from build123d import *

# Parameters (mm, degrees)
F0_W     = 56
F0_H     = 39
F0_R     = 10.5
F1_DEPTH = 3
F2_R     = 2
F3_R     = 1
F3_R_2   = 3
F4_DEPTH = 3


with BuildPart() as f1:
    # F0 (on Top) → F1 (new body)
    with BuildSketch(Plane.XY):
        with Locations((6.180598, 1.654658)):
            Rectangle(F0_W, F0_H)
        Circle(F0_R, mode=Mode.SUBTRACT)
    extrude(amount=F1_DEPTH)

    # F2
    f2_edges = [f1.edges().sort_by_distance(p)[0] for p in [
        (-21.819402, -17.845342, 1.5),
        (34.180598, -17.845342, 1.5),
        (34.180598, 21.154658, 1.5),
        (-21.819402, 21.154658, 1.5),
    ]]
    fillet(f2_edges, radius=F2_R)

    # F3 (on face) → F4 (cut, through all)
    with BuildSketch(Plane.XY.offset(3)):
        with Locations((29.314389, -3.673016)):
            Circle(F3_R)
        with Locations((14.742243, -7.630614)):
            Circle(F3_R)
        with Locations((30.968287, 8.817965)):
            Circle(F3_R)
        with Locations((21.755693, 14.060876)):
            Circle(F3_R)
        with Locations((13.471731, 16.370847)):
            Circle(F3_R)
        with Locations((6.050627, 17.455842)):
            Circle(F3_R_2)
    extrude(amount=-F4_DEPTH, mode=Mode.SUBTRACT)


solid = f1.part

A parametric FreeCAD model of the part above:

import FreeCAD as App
import Part
import Sketcher

V = App.Vector


def edges_at(feature, points):
    """Names of the edges that pass closest to the given points."""
    edges = feature.Shape.Edges
    near = lambda p: min(range(len(edges)), key=lambda i: edges[i].distToShape(Part.Vertex(*p))[0])
    return sorted({f"Edge{near(p) + 1}" for p in points})

doc = App.newDocument("Part")
body = doc.addObject("PartDesign::Body", "Body")

sketch1 = body.newObject("Sketcher::SketchObject", "Sketch")
sketch1.AttachmentSupport = (doc.getObject("XY_Plane"), [""])
sketch1.MapMode = "FlatFace"
sketch1.addGeometry([
    Part.LineSegment(V(-21.819402, 21.154658, 0), V(-21.819402, -17.845342, 0)),
    Part.LineSegment(V(-21.819402, -17.845342, 0), V(34.180598, -17.845342, 0)),
    Part.LineSegment(V(34.180598, -17.845342, 0), V(34.180598, 21.154658, 0)),
    Part.LineSegment(V(34.180598, 21.154658, 0), V(-21.819402, 21.154658, 0)),
    Part.Circle(V(0, 0, 0), V(0, 0, 1), 10.5),
], False)
sketch1.addConstraint([
    Sketcher.Constraint("Coincident", 0, 2, 1, 1),
    Sketcher.Constraint("Coincident", 1, 2, 2, 1),
    Sketcher.Constraint("Coincident", 2, 2, 3, 1),
    Sketcher.Constraint("Coincident", 3, 2, 0, 1),
    Sketcher.Constraint("Vertical", 0),
    Sketcher.Constraint("Horizontal", 1),
    Sketcher.Constraint("Vertical", 2),
    Sketcher.Constraint("Horizontal", 3),
    Sketcher.Constraint("Coincident", 4, 3, -1, 1),
    Sketcher.Constraint("Diameter", 4, 21.0),
    Sketcher.Constraint("DistanceX", 1, 1, 1, 2, 56.0),
    Sketcher.Constraint("DistanceY", 0, 2, 0, 1, 39.0),
    Sketcher.Constraint("DistanceX", 0, 2, -1, 1, 21.819402),
    Sketcher.Constraint("DistanceY", 0, 2, -1, 1, 17.845342),
])
pad1 = body.newObject("PartDesign::Pad", "Pad")
pad1.Profile = sketch1
pad1.Length = 3
doc.recompute()

fillet = body.newObject("PartDesign::Fillet", "Fillet")
fillet.Base = (pad1, edges_at(pad1, [
    (-21.819, -17.845, 1.5),
    (34.181, -17.845, 1.5),
    (34.181, 21.155, 1.5),
    (-21.819, 21.155, 1.5),
]))
fillet.Radius = 2

sketch2 = body.newObject("Sketcher::SketchObject", "Sketch001")
sketch2.AttachmentSupport = (doc.getObject("XY_Plane"), [""])
sketch2.MapMode = "FlatFace"
sketch2.AttachmentOffset = App.Placement(V(0, 0, 3), App.Rotation())
sketch2.addGeometry([
    Part.Circle(V(29.314389, -3.673016, 0), V(0, 0, 1), 1),
    Part.Circle(V(14.742243, -7.630614, 0), V(0, 0, 1), 1),
    Part.Circle(V(30.968287, 8.817965, 0), V(0, 0, 1), 1),
    Part.Circle(V(21.755693, 14.060876, 0), V(0, 0, 1), 1),
    Part.Circle(V(13.471731, 16.370847, 0), V(0, 0, 1), 1),
    Part.Circle(V(6.050627, 17.455842, 0), V(0, 0, 1), 3),
], False)
sketch2.addConstraint([
    Sketcher.Constraint("Equal", 0, 1),
    Sketcher.Constraint("Equal", 1, 2),
    Sketcher.Constraint("Equal", 2, 3),
    Sketcher.Constraint("Equal", 3, 4),
    Sketcher.Constraint("Diameter", 0, 2.0),
    Sketcher.Constraint("Diameter", 5, 6.0),
    Sketcher.Constraint("DistanceX", 0, 3, 2, 3, 1.653898),
    Sketcher.Constraint("DistanceX", -1, 1, 0, 3, 29.314389),
    Sketcher.Constraint("DistanceX", -1, 1, 4, 3, 13.471731),
    Sketcher.Constraint("DistanceY", 0, 3, 2, 3, 12.490981),
    Sketcher.Constraint("DistanceY", 1, 3, 2, 3, 16.448579),
    Sketcher.Constraint("DistanceY", 2, 3, 3, 3, 5.242911),
    Sketcher.Constraint("DistanceX", 1, 3, 3, 3, 7.01345),
    Sketcher.Constraint("DistanceY", 3, 3, 4, 3, 2.309971),
    Sketcher.Constraint("DistanceX", 5, 3, 2, 3, 24.91766),
    Sketcher.Constraint("DistanceY", 0, 3, 5, 3, 21.128858),
    Sketcher.Constraint("DistanceY", 0, 3, -1, 1, 3.673016),
    Sketcher.Constraint("DistanceX", -1, 1, 1, 3, 14.742243),
])
pocket1 = body.newObject("PartDesign::Pocket", "Pocket")
pocket1.Profile = sketch2
pocket1.Type = "ThroughAll"

doc.recompute()
